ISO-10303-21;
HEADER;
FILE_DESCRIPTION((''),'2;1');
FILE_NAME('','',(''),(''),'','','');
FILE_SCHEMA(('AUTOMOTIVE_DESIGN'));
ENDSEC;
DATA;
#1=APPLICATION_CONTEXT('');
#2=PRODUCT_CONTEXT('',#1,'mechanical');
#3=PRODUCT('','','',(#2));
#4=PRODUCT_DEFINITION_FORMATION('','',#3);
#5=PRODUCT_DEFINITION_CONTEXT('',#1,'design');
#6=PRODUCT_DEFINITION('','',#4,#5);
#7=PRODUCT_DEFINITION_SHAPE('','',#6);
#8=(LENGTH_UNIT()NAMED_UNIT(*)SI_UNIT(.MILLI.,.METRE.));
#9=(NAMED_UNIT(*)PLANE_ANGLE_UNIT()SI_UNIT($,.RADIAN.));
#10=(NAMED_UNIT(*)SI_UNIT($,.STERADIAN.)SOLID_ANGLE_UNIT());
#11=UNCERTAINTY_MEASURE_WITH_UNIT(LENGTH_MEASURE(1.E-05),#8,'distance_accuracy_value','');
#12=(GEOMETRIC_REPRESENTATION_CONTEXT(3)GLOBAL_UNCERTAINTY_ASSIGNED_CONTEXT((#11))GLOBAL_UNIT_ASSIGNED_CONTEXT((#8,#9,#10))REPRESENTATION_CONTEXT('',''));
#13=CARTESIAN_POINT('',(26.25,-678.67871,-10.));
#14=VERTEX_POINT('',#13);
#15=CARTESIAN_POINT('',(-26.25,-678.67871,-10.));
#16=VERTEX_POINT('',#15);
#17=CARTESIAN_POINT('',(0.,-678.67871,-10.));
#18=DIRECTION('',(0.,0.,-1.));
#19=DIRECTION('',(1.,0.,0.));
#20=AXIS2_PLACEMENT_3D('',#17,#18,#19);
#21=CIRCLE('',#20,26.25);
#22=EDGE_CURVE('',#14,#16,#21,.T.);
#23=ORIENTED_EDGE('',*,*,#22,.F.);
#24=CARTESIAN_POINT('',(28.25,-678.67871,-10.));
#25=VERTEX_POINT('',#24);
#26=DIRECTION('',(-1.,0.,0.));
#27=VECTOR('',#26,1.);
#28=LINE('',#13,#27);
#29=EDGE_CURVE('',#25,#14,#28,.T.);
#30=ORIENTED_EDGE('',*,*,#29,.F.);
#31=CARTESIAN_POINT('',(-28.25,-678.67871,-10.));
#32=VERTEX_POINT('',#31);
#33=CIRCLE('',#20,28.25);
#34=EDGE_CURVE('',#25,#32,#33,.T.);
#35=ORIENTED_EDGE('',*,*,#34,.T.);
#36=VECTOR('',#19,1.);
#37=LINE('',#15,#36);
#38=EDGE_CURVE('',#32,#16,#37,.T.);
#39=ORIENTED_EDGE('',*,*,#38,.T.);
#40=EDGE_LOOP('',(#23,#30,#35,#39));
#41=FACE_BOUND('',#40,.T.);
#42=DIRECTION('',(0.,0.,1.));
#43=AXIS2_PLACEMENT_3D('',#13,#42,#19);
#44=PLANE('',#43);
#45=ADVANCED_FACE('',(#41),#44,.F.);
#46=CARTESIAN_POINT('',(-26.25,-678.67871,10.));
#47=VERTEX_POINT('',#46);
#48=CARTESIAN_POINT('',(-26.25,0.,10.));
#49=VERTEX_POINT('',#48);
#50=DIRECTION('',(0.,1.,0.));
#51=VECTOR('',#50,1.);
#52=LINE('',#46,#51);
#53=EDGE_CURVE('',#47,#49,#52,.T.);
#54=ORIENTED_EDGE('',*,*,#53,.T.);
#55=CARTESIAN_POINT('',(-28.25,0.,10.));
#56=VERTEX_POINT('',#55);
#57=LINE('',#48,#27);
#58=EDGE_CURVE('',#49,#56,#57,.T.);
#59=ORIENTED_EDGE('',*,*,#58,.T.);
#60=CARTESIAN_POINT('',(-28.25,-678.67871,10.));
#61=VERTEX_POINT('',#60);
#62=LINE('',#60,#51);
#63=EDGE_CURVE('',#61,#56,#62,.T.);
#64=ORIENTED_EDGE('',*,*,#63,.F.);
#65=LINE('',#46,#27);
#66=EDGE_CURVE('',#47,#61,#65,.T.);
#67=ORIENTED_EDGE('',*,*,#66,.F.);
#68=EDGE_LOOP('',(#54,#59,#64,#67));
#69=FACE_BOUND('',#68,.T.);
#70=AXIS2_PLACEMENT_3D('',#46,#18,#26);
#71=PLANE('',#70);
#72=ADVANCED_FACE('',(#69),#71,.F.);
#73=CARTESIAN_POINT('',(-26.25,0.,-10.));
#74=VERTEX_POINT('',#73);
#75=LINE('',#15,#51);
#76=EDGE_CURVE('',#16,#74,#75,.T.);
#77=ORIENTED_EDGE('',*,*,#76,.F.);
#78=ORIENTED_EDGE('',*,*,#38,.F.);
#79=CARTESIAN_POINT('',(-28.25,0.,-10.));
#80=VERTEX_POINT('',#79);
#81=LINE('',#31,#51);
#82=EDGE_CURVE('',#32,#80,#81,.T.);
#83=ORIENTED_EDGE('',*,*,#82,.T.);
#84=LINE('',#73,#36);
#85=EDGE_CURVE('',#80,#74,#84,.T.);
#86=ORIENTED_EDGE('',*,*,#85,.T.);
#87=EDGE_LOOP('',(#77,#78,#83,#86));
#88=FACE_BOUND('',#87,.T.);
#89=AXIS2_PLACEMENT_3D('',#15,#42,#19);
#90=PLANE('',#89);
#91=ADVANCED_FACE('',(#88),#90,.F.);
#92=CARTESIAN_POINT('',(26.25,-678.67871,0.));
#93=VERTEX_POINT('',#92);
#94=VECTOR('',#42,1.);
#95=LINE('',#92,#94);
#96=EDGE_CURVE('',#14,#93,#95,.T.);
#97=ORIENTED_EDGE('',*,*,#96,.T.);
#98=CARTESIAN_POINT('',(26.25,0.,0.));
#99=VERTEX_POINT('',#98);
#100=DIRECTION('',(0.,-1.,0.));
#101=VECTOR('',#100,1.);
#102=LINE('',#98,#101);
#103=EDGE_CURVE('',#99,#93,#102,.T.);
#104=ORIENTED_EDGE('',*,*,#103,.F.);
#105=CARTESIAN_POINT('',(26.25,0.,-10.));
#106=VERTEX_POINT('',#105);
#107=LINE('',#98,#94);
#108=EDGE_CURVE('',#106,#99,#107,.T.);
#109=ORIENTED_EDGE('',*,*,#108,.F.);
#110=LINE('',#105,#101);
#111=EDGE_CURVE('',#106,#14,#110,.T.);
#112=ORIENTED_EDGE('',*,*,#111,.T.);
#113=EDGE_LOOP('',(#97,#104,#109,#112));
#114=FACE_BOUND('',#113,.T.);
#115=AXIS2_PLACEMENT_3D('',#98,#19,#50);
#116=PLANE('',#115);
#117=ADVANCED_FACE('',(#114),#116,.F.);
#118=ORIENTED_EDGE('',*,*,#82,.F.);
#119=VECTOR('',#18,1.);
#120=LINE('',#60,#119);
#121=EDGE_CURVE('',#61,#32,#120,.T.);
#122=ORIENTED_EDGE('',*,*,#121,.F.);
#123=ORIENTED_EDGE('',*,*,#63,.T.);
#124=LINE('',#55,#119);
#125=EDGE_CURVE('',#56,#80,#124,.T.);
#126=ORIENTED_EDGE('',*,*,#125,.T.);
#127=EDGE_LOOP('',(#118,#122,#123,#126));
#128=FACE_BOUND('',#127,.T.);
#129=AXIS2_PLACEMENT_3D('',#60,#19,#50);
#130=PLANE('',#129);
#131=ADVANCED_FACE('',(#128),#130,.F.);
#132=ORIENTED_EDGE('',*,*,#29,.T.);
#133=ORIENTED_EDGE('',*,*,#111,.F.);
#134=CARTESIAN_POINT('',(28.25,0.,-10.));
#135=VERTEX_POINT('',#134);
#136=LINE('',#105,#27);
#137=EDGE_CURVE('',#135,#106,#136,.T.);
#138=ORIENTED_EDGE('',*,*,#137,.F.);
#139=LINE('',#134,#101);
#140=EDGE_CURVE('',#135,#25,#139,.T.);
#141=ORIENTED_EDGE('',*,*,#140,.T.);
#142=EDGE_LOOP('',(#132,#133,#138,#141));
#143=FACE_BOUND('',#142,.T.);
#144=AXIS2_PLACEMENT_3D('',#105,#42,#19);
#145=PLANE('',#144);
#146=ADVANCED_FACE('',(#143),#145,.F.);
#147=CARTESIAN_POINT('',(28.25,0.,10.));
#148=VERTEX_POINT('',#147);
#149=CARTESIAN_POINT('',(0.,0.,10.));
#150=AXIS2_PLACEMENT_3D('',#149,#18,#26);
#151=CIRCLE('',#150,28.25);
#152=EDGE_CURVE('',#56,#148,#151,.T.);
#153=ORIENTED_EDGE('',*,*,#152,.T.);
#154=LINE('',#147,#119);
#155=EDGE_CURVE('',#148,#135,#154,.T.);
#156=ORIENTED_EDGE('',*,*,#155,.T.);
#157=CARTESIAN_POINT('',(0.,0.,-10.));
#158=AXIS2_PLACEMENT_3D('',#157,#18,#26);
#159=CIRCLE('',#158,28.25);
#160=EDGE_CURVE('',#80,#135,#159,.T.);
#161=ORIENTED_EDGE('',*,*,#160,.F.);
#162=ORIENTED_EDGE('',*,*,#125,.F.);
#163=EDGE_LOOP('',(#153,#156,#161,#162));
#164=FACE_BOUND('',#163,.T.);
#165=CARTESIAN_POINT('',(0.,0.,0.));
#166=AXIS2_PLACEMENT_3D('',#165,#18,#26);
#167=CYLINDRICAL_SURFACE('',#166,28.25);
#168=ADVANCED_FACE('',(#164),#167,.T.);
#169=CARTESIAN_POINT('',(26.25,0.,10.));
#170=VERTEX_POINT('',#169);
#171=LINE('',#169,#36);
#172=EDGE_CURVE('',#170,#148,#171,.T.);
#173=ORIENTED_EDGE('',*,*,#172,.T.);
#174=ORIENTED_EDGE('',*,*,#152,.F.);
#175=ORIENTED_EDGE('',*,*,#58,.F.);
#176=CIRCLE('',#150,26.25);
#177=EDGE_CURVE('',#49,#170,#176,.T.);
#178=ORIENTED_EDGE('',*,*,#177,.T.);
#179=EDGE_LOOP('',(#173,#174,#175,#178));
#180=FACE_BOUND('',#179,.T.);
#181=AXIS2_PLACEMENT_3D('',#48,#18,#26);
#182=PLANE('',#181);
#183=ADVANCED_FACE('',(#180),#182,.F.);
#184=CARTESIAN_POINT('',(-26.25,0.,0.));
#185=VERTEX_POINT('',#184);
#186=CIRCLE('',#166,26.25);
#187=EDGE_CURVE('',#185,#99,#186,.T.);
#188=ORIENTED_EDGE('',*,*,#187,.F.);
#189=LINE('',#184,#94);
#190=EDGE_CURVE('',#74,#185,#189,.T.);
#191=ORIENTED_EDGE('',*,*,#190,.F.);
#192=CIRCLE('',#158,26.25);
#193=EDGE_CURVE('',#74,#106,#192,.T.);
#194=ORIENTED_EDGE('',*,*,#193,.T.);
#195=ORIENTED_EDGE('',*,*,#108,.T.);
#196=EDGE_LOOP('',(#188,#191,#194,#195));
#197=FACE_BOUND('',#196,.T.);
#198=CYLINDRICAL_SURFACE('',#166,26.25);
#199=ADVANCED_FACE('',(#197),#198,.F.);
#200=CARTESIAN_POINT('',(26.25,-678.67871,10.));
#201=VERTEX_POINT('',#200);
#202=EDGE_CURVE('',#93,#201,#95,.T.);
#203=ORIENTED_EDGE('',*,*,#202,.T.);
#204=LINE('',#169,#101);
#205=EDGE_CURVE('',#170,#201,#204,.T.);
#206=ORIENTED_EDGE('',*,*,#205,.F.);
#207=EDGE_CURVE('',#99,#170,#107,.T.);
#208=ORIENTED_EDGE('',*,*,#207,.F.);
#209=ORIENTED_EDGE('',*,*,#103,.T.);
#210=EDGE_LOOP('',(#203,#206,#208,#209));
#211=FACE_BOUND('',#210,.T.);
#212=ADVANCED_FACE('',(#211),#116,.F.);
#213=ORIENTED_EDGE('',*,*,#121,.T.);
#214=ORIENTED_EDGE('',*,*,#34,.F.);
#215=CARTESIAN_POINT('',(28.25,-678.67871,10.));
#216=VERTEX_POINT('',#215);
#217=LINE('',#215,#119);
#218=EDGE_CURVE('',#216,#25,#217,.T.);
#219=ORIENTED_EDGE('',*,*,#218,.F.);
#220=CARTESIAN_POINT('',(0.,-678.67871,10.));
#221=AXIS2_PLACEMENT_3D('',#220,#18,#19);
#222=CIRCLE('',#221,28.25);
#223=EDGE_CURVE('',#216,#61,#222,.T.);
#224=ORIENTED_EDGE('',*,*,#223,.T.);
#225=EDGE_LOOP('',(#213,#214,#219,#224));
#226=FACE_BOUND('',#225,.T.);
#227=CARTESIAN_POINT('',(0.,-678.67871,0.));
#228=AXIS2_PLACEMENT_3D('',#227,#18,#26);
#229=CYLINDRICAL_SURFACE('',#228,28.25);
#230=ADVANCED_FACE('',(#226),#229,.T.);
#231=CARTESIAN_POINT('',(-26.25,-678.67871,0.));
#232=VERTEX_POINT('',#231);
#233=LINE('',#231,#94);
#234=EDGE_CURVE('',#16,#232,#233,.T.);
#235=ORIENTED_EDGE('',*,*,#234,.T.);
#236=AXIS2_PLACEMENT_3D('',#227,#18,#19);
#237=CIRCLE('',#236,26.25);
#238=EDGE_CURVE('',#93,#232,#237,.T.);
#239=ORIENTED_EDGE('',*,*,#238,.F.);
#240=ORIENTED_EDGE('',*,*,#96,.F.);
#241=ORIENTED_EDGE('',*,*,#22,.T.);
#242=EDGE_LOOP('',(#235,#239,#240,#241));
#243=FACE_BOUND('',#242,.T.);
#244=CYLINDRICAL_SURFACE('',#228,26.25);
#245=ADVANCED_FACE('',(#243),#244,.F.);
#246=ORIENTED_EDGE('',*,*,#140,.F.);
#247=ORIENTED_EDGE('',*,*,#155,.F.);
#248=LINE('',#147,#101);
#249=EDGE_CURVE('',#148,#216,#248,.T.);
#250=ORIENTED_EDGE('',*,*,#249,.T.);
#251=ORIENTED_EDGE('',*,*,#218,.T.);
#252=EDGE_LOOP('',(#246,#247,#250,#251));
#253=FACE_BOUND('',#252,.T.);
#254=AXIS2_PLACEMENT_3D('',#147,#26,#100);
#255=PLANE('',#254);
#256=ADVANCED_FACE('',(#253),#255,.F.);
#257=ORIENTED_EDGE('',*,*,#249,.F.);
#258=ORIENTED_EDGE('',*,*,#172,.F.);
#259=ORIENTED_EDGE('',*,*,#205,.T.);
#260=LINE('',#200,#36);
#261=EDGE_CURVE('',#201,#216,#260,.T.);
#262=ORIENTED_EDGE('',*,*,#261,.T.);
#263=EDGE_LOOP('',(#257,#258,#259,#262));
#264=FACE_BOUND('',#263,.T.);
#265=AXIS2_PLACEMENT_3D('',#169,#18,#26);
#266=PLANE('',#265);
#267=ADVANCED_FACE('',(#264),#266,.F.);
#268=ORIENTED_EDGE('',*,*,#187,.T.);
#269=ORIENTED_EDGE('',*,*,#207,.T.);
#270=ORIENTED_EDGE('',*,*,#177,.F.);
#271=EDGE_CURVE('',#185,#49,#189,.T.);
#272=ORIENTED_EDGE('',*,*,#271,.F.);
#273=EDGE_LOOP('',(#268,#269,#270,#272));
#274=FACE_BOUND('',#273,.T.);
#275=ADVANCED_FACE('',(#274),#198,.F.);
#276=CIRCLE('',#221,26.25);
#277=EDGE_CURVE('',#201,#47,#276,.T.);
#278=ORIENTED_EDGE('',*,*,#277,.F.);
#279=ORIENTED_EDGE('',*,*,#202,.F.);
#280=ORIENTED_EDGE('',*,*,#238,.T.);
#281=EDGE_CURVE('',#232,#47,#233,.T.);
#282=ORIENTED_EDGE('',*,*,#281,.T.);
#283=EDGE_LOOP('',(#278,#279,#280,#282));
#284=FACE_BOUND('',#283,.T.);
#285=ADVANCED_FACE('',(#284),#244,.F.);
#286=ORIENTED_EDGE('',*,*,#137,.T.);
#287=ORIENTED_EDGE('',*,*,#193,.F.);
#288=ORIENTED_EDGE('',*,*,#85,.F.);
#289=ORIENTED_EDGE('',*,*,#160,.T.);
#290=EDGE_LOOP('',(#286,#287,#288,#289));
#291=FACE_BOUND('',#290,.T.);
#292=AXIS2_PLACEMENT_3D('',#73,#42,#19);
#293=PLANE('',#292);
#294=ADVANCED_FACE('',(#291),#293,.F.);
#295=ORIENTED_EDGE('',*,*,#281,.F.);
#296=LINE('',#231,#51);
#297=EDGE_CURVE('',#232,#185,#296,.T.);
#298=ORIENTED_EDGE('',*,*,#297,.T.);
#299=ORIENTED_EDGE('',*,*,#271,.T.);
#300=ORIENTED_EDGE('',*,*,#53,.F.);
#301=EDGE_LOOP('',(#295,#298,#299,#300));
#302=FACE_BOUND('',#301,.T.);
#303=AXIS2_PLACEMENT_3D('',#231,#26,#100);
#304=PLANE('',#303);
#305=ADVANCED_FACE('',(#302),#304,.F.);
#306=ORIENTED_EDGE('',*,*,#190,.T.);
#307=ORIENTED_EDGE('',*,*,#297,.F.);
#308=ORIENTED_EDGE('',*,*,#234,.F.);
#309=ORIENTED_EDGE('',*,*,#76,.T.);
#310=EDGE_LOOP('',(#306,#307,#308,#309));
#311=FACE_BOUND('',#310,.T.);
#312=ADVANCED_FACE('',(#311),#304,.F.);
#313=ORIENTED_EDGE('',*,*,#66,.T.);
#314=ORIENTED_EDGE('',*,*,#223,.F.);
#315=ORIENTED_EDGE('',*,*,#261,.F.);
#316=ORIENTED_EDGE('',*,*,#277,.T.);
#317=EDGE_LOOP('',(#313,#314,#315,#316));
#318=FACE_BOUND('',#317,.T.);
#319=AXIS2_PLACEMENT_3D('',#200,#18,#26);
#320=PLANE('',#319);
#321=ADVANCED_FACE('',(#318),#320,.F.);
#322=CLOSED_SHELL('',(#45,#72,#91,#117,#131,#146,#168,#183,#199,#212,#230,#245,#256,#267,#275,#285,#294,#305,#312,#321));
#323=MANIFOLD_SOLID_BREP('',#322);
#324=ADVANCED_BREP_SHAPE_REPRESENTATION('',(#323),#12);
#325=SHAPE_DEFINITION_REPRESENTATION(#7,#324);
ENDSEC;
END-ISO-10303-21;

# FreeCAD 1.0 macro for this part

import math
import FreeCAD as App
import Part
import Sketcher
from FreeCAD import Vector
Q = App.Units.Quantity


def add_polygon(sketch, points):
    """Adds a closed chain of lines whose ends are joined by coincident constraints."""
    first, n = sketch.GeometryCount, len(points)
    for a, b in zip(points, points[1:] + points[:1]):
        sketch.addGeometry(Part.LineSegment(App.Vector(*a, 0), App.Vector(*b, 0)), False)
    for i in range(n):
        sketch.addConstraint(Sketcher.Constraint("Coincident", first + i, 2, first + (i + 1) % n, 1))

doc = App.newDocument("Part")
body = doc.addObject("PartDesign::Body", "Body")

# Sketch on XZ plane
sketch1 = body.newObject("Sketcher::SketchObject", "Sketch")
sketch1.AttachmentSupport = (doc.getObject("XZ_Plane"), [""])
sketch1.MapMode = "FlatFace"
add_polygon(sketch1, [(26.25, 10), (28.25, 10), (28.25, -10), (26.25, -10)])  # lines 0-3
sketch1.addConstraint(Sketcher.Constraint("Horizontal", 0))
sketch1.addConstraint(Sketcher.Constraint("Vertical", 1))
sketch1.addConstraint(Sketcher.Constraint("Horizontal", 2))
sketch1.addConstraint(Sketcher.Constraint("Vertical", 3))
sketch1.addConstraint(Sketcher.Constraint("DistanceX", 0, 1, 0, 2, Q("2 mm")))
sketch1.addConstraint(Sketcher.Constraint("DistanceY", 1, 2, 1, 1, Q("20 mm")))
sketch1.addConstraint(Sketcher.Constraint("DistanceY", -1, 1, 0, 2, Q("10 mm")))
sketch1.addConstraint(Sketcher.Constraint("DistanceX", -1, 1, 0, 2, Q("28.25 mm")))

# Sketch on XY plane
sketch2 = body.newObject("Sketcher::SketchObject", "Sketch001")
sketch2.AttachmentSupport = (doc.getObject("XY_Plane"), [""])
sketch2.MapMode = "FlatFace"
sketch2.addGeometry(Part.LineSegment(Vector(-26.25, -678.67871, 0), Vector(-26.25, 0, 0)), False)
sketch2.addGeometry(Part.ArcOfCircle(Part.Circle(Vector(0, 0, 0), Vector(0, 0, 1), 26.25), math.radians(0), math.radians(180)), False)
sketch2.addGeometry(Part.LineSegment(Vector(26.25, 0, 0), Vector(26.25, -678.67871, 0)), False)
sketch2.addGeometry(Part.ArcOfCircle(Part.Circle(Vector(0, -678.67871, 0), Vector(0, 0, 1), 26.25), math.radians(180), math.radians(360)), False)
sketch2.addConstraint(Sketcher.Constraint("Tangent", 0, 2, 1, 2))
sketch2.addConstraint(Sketcher.Constraint("Tangent", 1, 1, 2, 1))
sketch2.addConstraint(Sketcher.Constraint("Tangent", 2, 2, 3, 2))
sketch2.addConstraint(Sketcher.Constraint("Tangent", 3, 1, 0, 1))
sketch2.addConstraint(Sketcher.Constraint("Vertical", 0))
sketch2.addConstraint(Sketcher.Constraint("Vertical", 2))
sketch2.addConstraint(Sketcher.Constraint("Coincident", 1, 3, -1, 1))
sketch2.addConstraint(Sketcher.Constraint("Radius", 1, Q("26.25 mm")))
sketch2.addConstraint(Sketcher.Constraint("DistanceY", 0, 1, 0, 2, Q("678.67871 mm")))
doc.recompute()

additivepipe = body.newObject("PartDesign::AdditivePipe", "AdditivePipe")
additivepipe.Profile = sketch1
additivepipe.Spine = (sketch2, ["Edge1", "Edge2", "Edge3", "Edge4"])

doc.recompute()
